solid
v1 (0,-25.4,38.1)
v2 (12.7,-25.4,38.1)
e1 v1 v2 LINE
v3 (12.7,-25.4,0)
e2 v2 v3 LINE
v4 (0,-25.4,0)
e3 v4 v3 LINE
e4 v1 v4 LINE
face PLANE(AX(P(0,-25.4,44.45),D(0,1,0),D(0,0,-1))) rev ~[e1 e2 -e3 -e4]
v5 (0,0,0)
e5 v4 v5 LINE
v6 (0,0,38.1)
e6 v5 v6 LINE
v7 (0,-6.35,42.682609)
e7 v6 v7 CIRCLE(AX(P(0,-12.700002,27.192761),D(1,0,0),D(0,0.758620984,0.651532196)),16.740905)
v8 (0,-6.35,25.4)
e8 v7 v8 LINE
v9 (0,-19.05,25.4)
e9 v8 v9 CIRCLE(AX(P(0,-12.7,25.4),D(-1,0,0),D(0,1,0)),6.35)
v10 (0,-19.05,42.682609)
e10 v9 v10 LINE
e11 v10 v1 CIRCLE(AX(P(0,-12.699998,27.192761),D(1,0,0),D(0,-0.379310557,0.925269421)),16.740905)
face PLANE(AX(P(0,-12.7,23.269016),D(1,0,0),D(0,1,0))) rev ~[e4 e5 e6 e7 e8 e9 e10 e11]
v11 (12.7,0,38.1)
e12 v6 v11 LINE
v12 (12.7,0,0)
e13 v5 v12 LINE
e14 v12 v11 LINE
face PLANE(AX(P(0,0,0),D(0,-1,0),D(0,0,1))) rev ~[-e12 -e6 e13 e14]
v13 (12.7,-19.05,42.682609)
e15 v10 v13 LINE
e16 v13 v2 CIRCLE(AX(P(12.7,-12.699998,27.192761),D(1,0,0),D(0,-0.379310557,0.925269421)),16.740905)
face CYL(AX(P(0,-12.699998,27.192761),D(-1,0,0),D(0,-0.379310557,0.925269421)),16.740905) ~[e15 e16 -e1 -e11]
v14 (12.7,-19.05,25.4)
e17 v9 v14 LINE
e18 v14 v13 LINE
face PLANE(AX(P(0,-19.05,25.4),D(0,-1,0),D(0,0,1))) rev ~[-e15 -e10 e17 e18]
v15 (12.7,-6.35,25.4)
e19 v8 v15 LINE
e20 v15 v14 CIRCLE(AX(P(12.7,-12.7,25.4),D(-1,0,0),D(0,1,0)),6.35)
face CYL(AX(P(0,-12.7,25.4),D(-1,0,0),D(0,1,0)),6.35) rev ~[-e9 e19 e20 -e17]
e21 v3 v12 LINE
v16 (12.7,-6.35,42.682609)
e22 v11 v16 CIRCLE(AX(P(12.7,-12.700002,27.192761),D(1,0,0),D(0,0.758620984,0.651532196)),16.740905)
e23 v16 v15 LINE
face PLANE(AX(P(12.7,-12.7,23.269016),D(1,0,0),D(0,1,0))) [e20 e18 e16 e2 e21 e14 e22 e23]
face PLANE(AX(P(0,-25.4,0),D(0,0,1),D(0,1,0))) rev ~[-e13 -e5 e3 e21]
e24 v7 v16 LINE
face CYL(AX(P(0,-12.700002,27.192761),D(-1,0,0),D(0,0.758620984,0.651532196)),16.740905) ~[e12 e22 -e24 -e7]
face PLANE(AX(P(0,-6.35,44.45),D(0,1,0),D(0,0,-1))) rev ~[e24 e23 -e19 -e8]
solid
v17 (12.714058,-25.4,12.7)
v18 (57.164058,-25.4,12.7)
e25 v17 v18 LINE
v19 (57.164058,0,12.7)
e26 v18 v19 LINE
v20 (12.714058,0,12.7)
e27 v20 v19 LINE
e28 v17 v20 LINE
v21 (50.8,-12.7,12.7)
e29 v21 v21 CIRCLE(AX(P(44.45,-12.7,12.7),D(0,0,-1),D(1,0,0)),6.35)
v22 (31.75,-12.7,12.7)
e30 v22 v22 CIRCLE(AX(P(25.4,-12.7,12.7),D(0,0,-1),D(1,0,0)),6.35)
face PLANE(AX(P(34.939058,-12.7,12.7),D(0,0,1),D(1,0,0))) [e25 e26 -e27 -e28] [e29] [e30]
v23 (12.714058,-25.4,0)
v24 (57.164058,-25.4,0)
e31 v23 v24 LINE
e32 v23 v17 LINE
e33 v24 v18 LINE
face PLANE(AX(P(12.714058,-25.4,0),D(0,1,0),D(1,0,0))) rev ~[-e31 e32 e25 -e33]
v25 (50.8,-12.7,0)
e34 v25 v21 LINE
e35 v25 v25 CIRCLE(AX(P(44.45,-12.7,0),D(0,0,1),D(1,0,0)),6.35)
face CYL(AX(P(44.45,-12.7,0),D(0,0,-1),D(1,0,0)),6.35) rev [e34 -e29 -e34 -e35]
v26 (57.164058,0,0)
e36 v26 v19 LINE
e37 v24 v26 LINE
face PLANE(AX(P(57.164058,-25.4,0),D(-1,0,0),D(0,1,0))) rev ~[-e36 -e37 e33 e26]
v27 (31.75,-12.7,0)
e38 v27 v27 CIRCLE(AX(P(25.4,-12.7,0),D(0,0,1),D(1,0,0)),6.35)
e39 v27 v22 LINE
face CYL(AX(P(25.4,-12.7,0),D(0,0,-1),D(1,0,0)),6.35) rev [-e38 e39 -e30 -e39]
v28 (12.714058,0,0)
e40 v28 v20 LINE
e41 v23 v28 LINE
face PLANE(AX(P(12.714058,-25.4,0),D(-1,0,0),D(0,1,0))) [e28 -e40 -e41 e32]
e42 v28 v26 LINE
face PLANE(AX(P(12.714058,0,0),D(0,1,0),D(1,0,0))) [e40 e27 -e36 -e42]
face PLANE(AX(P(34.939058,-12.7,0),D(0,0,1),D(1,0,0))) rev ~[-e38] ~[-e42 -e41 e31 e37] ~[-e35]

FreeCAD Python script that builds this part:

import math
import FreeCAD as App
import Part
import Sketcher
Q = App.Units.Quantity

doc = App.newDocument("Part")
body = doc.addObject("PartDesign::Body", "Body")

# Sketch on YZ plane
sketch1 = body.newObject("Sketcher::SketchObject", "Sketch")
sketch1.AttachmentSupport = (doc.getObject("YZ_Plane"), [""])
sketch1.MapMode = "FlatFace"
sketch1.addGeometry(Part.LineSegment(App.Vector(-25.4, 0, 0), App.Vector(0, 0, 0)), False)
sketch1.addGeometry(Part.LineSegment(App.Vector(0, 0, 0), App.Vector(0, 44.45, 0)), False)
sketch1.addGeometry(Part.LineSegment(App.Vector(0, 44.45, 0), App.Vector(-6.35, 44.45, 0)), False)
sketch1.addGeometry(Part.LineSegment(App.Vector(-6.35, 44.45, 0), App.Vector(-6.35, 25.4, 0)), False)
sketch1.addGeometry(Part.ArcOfCircle(Part.Circle(App.Vector(-12.7, 25.4, 0), App.Vector(0, 0, 1), 6.35), math.radians(180), math.radians(360)), False)
sketch1.addGeometry(Part.LineSegment(App.Vector(-19.05, 25.4, 0), App.Vector(-19.05, 44.45, 0)), False)
sketch1.addGeometry(Part.LineSegment(App.Vector(-19.05, 44.45, 0), App.Vector(-25.4, 44.45, 0)), False)
sketch1.addGeometry(Part.LineSegment(App.Vector(-25.4, 44.45, 0), App.Vector(-25.4, 0, 0)), False)
sketch1.addConstraint(Sketcher.Constraint("Coincident", 0, 2, 1, 1))
sketch1.addConstraint(Sketcher.Constraint("Coincident", 1, 2, 2, 1))
sketch1.addConstraint(Sketcher.Constraint("Coincident", 2, 2, 3, 1))
sketch1.addConstraint(Sketcher.Constraint("Tangent", 3, 2, 4, 2))
sketch1.addConstraint(Sketcher.Constraint("Tangent", 4, 1, 5, 1))
sketch1.addConstraint(Sketcher.Constraint("Coincident", 5, 2, 6, 1))
sketch1.addConstraint(Sketcher.Constraint("Coincident", 6, 2, 7, 1))
sketch1.addConstraint(Sketcher.Constraint("Coincident", 7, 2, 0, 1))
sketch1.addConstraint(Sketcher.Constraint("Horizontal", 0))
sketch1.addConstraint(Sketcher.Constraint("Vertical", 1))
sketch1.addConstraint(Sketcher.Constraint("Horizontal", 2))
sketch1.addConstraint(Sketcher.Constraint("Vertical", 3))
sketch1.addConstraint(Sketcher.Constraint("Vertical", 5))
sketch1.addConstraint(Sketcher.Constraint("Horizontal", 6))
sketch1.addConstraint(Sketcher.Constraint("Vertical", 7))
sketch1.addConstraint(Sketcher.Constraint("Coincident", 0, 2, -1, 1))
sketch1.addConstraint(Sketcher.Constraint("Horizontal", 2, 2, 5, 2))
sketch1.addConstraint(Sketcher.Constraint("Equal", 2, 6))
sketch1.addConstraint(Sketcher.Constraint("DistanceX", 0, 1, 0, 2, Q("1 in")))
sketch1.addConstraint(Sketcher.Constraint("Radius", 4, Q("0.25 in")))
sketch1.addConstraint(Sketcher.Constraint("DistanceY", -1, 1, 4, 3, Q("1 in")))
sketch1.addConstraint(Sketcher.Constraint("DistanceY", 1, 1, 1, 2, Q("1.75 in")))
pad1 = body.newObject("PartDesign::Pad", "Pad")
pad1.Profile = sketch1
pad1.Length = Q("0.5 in")

# Sketch on YZ plane
sketch2 = body.newObject("Sketcher::SketchObject", "Sketch001")
sketch2.AttachmentSupport = (doc.getObject("YZ_Plane"), [""])
sketch2.MapMode = "FlatFace"
sketch2.addGeometry(Part.ArcOfCircle(Part.Circle(App.Vector(-12.700002, 27.192761, 0), App.Vector(0, 0, 1), 16.740905), math.radians(40.657223), math.radians(67.709016)), False)
sketch2.addGeometry(Part.LineSegment(App.Vector(-6.35, 42.682609, 0), App.Vector(-6.35, 44.45, 0)), False)
sketch2.addGeometry(Part.LineSegment(App.Vector(-6.35, 44.45, 0), App.Vector(0, 44.45, 0)), False)
sketch2.addGeometry(Part.LineSegment(App.Vector(0, 44.45, 0), App.Vector(0, 38.1, 0)), False)
sketch2.addGeometry(Part.ArcOfCircle(Part.Circle(App.Vector(-12.699998, 27.192761, 0), App.Vector(0, 0, 1), 16.740905), math.radians(112.290984), math.radians(139.342777)), False)
sketch2.addGeometry(Part.LineSegment(App.Vector(-25.4, 38.1, 0), App.Vector(-25.4, 44.45, 0)), False)
sketch2.addGeometry(Part.LineSegment(App.Vector(-25.4, 44.45, 0), App.Vector(-19.05, 44.45, 0)), False)
sketch2.addGeometry(Part.LineSegment(App.Vector(-19.05, 44.45, 0), App.Vector(-19.05, 42.682609, 0)), False)
sketch2.addConstraint(Sketcher.Constraint("Coincident", 0, 2, 1, 1))
sketch2.addConstraint(Sketcher.Constraint("Coincident", 1, 2, 2, 1))
sketch2.addConstraint(Sketcher.Constraint("Coincident", 2, 2, 3, 1))
sketch2.addConstraint(Sketcher.Constraint("Coincident", 3, 2, 0, 1))
sketch2.addConstraint(Sketcher.Constraint("Coincident", 4, 2, 5, 1))
sketch2.addConstraint(Sketcher.Constraint("Coincident", 5, 2, 6, 1))
sketch2.addConstraint(Sketcher.Constraint("Coincident", 6, 2, 7, 1))
sketch2.addConstraint(Sketcher.Constraint("Coincident", 7, 2, 4, 1))
sketch2.addConstraint(Sketcher.Constraint("Vertical", 1))
sketch2.addConstraint(Sketcher.Constraint("Horizontal", 2))
sketch2.addConstraint(Sketcher.Constraint("Vertical", 3))
sketch2.addConstraint(Sketcher.Constraint("Vertical", 5))
sketch2.addConstraint(Sketcher.Constraint("Horizontal", 6))
sketch2.addConstraint(Sketcher.Constraint("Vertical", 7))
sketch2.addConstraint(Sketcher.Constraint("Coincident", 4, 3, 0, 3))
sketch2.addConstraint(Sketcher.Constraint("Equal", 0, 4))
sketch2.addConstraint(Sketcher.Constraint("PointOnObject", 2, 2, -2))
sketch2.addConstraint(Sketcher.Constraint("Horizontal", 3, 2, 4, 2))
sketch2.addConstraint(Sketcher.Constraint("Horizontal", 2, 2, 5, 2))
sketch2.addConstraint(Sketcher.Constraint("Horizontal", 0, 2, 7, 2))
sketch2.addConstraint(Sketcher.Constraint("Equal", 6, 3))
sketch2.addConstraint(Sketcher.Constraint("DistanceX", 4, 2, -1, 1, Q("1 in")))
sketch2.addConstraint(Sketcher.Constraint("DistanceX", 2, 1, 2, 2, Q("0.25 in")))
sketch2.addConstraint(Sketcher.Constraint("DistanceY", -1, 1, 3, 2, Q("1.5 in")))
sketch2.addConstraint(Sketcher.Constraint("Radius", 0, 16.740905))
pocket1 = body.newObject("PartDesign::Pocket", "Pocket")
pocket1.Profile = sketch2
pocket1.Length = Q("0.5 in")
pocket1.Reversed = True
body2 = doc.addObject("PartDesign::Body", "Body001")

# Sketch on XY plane
sketch3 = body2.newObject("Sketcher::SketchObject", "Sketch002")
sketch3.AttachmentSupport = (doc.getObject("XY_Plane001"), [""])
sketch3.MapMode = "FlatFace"
sketch3.addGeometry(Part.LineSegment(App.Vector(12.714058, 0, 0), App.Vector(12.714058, -25.4, 0)), False)
sketch3.addGeometry(Part.LineSegment(App.Vector(12.714058, -25.4, 0), App.Vector(57.164058, -25.4, 0)), False)
sketch3.addGeometry(Part.LineSegment(App.Vector(57.164058, -25.4, 0), App.Vector(57.164058, 0, 0)), False)
sketch3.addGeometry(Part.LineSegment(App.Vector(57.164058, 0, 0), App.Vector(12.714058, 0, 0)), False)
sketch3.addConstraint(Sketcher.Constraint("Coincident", 0, 2, 1, 1))
sketch3.addConstraint(Sketcher.Constraint("Coincident", 1, 2, 2, 1))
sketch3.addConstraint(Sketcher.Constraint("Coincident", 2, 2, 3, 1))
sketch3.addConstraint(Sketcher.Constraint("Coincident", 3, 2, 0, 1))
sketch3.addConstraint(Sketcher.Constraint("Vertical", 0))
sketch3.addConstraint(Sketcher.Constraint("Horizontal", 1))
sketch3.addConstraint(Sketcher.Constraint("Vertical", 2))
sketch3.addConstraint(Sketcher.Constraint("Horizontal", 3))
sketch3.addConstraint(Sketcher.Constraint("PointOnObject", 2, 2, -1))
sketch3.addConstraint(Sketcher.Constraint("DistanceY", 0, 2, 0, 1, Q("1 in")))
sketch3.addConstraint(Sketcher.Constraint("DistanceX", 1, 1, 1, 2, Q("1.75 in")))
sketch3.addConstraint(Sketcher.Constraint("DistanceX", -1, 1, 0, 2, 12.714058))
pad2 = body2.newObject("PartDesign::Pad", "Pad001")
pad2.Profile = sketch3
pad2.Length = Q("0.5 in")

# Sketch on XY plane
sketch4 = body2.newObject("Sketcher::SketchObject", "Sketch003")
sketch4.AttachmentSupport = (doc.getObject("XY_Plane001"), [""])
sketch4.MapMode = "FlatFace"
sketch4.addGeometry(Part.Circle(App.Vector(25.4, -12.7, 0), App.Vector(0, 0, 1), 6.35), False)
sketch4.addGeometry(Part.Circle(App.Vector(44.45, -12.7, 0), App.Vector(0, 0, 1), 6.35), False)
sketch4.addConstraint(Sketcher.Constraint("Equal", 0, 1))
sketch4.addConstraint(Sketcher.Constraint("Horizontal", 0, 3, 1, 3))
sketch4.addConstraint(Sketcher.Constraint("Diameter", 0, Q("0.5 in")))
sketch4.addConstraint(Sketcher.Constraint("DistanceX", -1, 1, 0, 3, Q("1 in")))
sketch4.addConstraint(Sketcher.Constraint("DistanceY", 0, 3, -1, 1, Q("0.5 in")))
sketch4.addConstraint(Sketcher.Constraint("DistanceX", -1, 1, 1, 3, Q("1.75 in")))
pocket2 = body2.newObject("PartDesign::Pocket", "Pocket001")
pocket2.Profile = sketch4
pocket2.Length = Q("1 in")
pocket2.Reversed = True

doc.recompute()
